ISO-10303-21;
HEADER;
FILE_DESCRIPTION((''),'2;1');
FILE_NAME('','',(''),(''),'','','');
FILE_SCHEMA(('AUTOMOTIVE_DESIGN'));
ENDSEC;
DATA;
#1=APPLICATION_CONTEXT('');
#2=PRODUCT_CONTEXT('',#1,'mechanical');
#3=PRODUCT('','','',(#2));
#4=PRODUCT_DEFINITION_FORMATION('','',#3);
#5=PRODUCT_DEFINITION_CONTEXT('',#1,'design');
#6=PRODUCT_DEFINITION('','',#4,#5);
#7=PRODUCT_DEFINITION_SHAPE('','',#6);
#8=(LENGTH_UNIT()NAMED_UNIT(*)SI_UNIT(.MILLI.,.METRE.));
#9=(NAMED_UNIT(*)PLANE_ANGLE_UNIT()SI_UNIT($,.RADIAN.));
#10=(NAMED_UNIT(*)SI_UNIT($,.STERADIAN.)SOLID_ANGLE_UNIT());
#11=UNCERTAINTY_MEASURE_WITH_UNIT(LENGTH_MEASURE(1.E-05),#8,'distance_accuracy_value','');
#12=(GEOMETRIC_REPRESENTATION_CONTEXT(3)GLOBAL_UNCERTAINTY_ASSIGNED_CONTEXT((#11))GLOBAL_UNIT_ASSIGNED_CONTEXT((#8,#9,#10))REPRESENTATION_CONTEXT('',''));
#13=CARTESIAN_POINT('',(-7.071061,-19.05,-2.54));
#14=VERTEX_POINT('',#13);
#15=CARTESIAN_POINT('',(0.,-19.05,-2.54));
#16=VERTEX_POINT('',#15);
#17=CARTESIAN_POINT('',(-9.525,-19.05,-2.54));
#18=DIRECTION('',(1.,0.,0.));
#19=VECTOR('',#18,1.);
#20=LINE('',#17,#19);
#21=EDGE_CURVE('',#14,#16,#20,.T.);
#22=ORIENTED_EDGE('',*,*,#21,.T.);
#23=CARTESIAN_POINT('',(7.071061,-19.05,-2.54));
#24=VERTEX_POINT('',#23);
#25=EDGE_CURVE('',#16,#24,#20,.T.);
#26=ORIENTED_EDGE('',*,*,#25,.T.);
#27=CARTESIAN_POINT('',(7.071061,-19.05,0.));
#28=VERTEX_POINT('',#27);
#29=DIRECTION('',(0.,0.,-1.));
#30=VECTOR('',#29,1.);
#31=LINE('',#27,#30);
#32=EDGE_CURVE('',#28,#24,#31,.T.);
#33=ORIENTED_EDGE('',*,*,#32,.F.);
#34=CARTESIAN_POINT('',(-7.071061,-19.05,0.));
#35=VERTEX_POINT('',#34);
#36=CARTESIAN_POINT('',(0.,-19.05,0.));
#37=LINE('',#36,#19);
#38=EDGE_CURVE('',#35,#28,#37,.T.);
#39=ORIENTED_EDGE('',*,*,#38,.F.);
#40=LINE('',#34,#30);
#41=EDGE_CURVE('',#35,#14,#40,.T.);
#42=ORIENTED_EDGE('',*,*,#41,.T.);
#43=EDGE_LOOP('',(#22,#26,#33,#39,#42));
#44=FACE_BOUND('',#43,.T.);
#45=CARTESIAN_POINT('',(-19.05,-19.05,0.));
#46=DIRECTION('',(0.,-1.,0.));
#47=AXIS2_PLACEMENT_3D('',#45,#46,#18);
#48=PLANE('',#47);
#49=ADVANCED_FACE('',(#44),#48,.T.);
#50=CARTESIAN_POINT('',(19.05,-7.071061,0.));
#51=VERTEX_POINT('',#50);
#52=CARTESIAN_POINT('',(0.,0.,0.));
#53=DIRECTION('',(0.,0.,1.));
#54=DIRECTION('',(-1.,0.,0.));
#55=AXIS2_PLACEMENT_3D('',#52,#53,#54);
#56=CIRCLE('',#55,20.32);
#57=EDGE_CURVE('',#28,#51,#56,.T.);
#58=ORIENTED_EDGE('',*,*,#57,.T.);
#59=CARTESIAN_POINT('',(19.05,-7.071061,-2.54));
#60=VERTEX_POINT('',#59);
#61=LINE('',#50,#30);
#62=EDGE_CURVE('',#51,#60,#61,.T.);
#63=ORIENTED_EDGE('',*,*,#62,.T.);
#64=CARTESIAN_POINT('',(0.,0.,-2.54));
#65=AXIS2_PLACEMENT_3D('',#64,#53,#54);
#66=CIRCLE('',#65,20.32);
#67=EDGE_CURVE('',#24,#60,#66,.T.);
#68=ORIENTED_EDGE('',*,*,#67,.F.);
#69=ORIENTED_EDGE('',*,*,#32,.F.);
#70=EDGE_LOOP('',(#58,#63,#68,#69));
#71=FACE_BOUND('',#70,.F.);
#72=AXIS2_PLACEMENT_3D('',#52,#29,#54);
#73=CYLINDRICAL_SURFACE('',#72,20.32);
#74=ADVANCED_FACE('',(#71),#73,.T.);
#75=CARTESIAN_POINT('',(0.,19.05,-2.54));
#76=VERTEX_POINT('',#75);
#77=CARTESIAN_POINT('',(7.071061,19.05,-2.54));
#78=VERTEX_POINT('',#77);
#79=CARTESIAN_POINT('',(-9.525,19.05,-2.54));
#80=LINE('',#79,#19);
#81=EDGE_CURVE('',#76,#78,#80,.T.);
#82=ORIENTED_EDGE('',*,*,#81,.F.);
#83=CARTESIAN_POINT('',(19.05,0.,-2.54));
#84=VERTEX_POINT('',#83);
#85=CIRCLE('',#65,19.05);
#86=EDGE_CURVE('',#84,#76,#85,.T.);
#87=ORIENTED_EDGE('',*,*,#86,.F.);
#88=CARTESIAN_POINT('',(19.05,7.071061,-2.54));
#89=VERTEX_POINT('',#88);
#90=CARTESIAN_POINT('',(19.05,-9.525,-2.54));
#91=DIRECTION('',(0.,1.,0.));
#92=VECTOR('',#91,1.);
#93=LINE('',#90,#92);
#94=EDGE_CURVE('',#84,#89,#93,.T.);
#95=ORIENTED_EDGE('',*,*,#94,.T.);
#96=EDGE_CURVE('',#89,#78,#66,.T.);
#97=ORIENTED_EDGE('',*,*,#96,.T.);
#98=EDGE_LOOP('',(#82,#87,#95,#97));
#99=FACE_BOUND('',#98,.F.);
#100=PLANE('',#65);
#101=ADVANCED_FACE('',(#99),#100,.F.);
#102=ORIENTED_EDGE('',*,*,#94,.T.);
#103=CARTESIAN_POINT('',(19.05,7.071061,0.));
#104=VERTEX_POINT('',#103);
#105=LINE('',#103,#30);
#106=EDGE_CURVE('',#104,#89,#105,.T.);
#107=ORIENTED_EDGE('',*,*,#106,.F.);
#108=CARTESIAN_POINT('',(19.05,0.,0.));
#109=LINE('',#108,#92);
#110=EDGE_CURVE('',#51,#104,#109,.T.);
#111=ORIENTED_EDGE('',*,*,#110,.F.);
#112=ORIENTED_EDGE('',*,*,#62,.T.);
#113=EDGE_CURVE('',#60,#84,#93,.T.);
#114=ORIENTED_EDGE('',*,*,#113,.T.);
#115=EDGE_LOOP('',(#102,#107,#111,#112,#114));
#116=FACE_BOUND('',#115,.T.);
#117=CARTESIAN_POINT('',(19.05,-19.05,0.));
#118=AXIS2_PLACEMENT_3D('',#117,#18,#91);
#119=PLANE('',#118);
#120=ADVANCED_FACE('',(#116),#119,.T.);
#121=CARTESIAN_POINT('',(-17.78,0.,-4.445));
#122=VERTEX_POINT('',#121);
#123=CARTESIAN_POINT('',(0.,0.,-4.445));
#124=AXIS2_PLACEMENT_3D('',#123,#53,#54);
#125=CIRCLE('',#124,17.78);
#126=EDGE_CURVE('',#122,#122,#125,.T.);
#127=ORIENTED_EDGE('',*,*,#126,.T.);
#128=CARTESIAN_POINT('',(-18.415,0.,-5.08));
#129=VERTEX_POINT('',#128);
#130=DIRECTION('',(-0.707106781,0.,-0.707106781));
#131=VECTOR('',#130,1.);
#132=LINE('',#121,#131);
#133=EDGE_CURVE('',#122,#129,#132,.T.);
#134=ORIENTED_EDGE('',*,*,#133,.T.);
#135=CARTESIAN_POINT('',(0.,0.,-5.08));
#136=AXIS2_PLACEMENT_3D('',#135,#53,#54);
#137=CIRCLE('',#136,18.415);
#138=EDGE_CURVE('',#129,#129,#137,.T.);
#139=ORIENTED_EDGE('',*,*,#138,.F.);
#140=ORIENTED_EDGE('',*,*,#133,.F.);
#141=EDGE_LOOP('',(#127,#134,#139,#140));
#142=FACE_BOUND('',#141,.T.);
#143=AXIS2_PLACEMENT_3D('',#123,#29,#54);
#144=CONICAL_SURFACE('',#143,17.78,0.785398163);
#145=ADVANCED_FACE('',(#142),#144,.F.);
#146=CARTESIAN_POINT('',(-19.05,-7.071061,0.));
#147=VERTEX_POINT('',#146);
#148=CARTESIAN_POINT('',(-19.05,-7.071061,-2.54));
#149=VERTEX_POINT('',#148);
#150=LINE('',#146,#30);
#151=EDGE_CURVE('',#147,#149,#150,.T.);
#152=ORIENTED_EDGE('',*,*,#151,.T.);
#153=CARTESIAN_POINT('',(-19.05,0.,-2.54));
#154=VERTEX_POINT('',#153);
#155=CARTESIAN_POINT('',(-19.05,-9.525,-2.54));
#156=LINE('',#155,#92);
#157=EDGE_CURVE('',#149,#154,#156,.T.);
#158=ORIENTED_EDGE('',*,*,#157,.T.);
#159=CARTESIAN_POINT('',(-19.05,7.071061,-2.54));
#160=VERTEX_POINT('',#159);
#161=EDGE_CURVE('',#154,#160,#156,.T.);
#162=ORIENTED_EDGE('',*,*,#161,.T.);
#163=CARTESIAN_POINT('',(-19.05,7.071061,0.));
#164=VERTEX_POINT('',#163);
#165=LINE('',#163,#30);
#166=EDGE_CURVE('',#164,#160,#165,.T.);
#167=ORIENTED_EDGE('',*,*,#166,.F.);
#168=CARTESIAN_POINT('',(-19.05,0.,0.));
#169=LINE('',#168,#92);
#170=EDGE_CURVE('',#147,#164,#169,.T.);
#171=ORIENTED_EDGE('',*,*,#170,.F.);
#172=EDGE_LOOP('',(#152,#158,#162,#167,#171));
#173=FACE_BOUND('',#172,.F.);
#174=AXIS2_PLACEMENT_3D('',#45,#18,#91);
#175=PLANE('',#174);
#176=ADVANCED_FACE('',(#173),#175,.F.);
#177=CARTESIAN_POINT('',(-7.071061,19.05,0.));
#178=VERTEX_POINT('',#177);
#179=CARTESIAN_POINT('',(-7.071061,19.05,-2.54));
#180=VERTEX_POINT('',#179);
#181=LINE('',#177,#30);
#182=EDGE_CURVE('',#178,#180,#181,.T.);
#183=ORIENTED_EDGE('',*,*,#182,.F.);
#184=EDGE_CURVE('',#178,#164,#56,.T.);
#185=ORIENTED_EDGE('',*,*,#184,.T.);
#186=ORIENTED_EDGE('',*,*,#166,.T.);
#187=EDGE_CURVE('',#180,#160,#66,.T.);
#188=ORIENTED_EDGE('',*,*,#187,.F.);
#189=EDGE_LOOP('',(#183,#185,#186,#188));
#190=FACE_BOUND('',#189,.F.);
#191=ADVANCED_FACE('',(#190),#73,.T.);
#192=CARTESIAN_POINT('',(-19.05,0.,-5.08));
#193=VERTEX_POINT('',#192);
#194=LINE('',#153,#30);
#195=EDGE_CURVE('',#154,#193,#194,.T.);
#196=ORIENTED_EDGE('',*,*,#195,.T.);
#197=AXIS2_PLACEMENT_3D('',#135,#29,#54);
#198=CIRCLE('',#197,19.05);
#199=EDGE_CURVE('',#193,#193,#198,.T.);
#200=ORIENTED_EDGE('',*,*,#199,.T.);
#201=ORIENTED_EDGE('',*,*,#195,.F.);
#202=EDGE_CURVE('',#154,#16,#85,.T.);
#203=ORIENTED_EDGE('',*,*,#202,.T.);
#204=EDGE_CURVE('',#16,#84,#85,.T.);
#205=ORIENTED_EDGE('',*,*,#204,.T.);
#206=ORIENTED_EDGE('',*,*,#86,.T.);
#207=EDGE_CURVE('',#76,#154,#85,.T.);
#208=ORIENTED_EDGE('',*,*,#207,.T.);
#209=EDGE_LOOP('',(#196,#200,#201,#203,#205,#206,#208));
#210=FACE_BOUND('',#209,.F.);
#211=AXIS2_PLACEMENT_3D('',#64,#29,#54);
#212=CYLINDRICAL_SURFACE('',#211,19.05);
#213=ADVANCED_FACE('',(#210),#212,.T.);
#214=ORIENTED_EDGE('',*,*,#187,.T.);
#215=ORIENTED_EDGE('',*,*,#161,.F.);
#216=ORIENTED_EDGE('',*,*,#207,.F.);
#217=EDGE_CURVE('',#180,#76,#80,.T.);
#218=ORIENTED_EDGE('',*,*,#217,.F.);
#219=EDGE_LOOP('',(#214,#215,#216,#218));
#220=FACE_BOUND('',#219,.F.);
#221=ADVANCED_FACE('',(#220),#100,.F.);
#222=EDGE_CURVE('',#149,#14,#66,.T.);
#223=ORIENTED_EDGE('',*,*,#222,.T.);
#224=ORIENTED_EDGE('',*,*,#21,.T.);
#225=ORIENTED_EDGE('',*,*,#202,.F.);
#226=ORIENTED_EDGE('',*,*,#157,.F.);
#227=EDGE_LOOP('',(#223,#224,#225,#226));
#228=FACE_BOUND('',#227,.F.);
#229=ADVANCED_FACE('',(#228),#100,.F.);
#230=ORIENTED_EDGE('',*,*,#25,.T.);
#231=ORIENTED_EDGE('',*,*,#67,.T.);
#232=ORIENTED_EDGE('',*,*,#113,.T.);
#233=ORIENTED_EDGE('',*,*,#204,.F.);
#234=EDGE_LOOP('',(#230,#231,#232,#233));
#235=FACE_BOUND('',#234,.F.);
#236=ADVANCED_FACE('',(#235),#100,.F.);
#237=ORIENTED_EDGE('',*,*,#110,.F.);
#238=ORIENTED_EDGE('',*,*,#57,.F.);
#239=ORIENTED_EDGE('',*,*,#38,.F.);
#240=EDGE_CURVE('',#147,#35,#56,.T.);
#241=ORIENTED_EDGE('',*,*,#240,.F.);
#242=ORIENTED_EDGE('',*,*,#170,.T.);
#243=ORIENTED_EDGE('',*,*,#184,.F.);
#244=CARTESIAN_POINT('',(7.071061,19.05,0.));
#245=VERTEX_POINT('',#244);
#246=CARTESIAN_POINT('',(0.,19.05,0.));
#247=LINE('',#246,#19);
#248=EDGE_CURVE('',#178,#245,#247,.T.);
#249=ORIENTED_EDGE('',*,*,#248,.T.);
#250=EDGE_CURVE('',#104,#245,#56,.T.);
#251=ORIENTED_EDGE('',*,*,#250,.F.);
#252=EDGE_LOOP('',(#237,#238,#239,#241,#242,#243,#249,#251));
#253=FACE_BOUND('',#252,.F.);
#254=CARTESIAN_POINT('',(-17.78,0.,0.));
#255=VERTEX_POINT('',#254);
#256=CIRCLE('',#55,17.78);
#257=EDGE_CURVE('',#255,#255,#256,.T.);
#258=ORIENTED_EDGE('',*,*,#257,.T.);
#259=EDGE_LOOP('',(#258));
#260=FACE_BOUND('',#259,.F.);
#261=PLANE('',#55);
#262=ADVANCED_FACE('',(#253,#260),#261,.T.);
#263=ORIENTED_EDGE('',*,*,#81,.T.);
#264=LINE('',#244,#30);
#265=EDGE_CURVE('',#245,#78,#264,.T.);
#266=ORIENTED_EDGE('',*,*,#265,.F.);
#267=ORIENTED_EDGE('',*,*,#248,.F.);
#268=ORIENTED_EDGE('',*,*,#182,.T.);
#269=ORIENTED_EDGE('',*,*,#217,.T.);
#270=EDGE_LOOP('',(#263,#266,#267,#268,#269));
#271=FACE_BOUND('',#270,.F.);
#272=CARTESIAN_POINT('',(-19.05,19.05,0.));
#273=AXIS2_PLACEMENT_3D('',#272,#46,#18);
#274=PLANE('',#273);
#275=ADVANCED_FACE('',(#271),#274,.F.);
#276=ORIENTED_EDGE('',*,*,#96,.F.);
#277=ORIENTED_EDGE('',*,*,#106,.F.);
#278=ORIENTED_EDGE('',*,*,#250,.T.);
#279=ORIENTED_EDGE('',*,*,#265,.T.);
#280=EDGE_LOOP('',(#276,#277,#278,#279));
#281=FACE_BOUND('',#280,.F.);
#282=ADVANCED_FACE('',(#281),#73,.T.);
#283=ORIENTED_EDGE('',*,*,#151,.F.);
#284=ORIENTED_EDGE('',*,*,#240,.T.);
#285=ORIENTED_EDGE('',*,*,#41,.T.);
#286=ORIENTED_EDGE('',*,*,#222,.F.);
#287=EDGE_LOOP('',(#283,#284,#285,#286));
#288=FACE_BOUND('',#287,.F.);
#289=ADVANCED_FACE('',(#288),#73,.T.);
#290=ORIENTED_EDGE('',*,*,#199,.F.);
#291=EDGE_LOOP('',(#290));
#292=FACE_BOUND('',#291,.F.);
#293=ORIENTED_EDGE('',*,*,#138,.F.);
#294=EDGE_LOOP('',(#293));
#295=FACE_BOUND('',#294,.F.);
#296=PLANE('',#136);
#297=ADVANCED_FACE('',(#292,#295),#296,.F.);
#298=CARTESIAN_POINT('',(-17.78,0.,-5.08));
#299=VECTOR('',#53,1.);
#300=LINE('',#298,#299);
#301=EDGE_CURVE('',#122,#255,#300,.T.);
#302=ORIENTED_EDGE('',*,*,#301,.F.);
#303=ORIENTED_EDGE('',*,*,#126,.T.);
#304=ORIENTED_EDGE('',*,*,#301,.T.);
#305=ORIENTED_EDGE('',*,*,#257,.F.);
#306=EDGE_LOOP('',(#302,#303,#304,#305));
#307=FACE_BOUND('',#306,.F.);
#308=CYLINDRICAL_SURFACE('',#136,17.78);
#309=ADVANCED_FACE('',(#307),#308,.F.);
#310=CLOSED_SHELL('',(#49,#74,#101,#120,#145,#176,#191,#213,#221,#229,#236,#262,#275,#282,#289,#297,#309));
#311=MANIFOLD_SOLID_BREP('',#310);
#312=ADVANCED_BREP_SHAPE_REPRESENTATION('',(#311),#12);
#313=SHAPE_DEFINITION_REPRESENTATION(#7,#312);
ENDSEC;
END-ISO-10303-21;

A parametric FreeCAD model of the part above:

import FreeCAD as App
import Part
import Sketcher
Q = App.Units.Quantity


def edges_at(feature, points):
    """Names of the edges that pass closest to the given points."""
    edges = feature.Shape.Edges
    near = lambda p: min(range(len(edges)), key=lambda i: edges[i].distToShape(Part.Vertex(*p))[0])
    return sorted({f"Edge{near(p) + 1}" for p in points})

doc = App.newDocument("Part")
body = doc.addObject("PartDesign::Body", "Body")

sketch1 = body.newObject("Sketcher::SketchObject", "Sketch")
sketch1.AttachmentSupport = (doc.getObject("XZ_Plane"), [""])
sketch1.MapMode = "FlatFace"
sketch1.addGeometry([
    Part.LineSegment(App.Vector(-17.78, 0, 0), App.Vector(-20.32, 0, 0)),
    Part.LineSegment(App.Vector(-20.32, 0, 0), App.Vector(-20.32, -2.54, 0)),
    Part.LineSegment(App.Vector(-20.32, -2.54, 0), App.Vector(-19.05, -2.54, 0)),
    Part.LineSegment(App.Vector(-19.05, -2.54, 0), App.Vector(-19.05, -5.08, 0)),
    Part.LineSegment(App.Vector(-19.05, -5.08, 0), App.Vector(-17.78, -5.08, 0)),
    Part.LineSegment(App.Vector(-17.78, -5.08, 0), App.Vector(-17.78, 0, 0)),
], False)
sketch1.addConstraint([
    Sketcher.Constraint("Coincident", 0, 2, 1, 1),
    Sketcher.Constraint("Coincident", 1, 2, 2, 1),
    Sketcher.Constraint("Coincident", 2, 2, 3, 1),
    Sketcher.Constraint("Coincident", 3, 2, 4, 1),
    Sketcher.Constraint("Coincident", 4, 2, 5, 1),
    Sketcher.Constraint("Coincident", 5, 2, 0, 1),
    Sketcher.Constraint("Horizontal", 0),
    Sketcher.Constraint("Vertical", 1),
    Sketcher.Constraint("Horizontal", 2),
    Sketcher.Constraint("Vertical", 3),
    Sketcher.Constraint("Horizontal", 4),
    Sketcher.Constraint("Vertical", 5),
    Sketcher.Constraint("PointOnObject", 0, 2, -1),
    Sketcher.Constraint("Equal", 2, 4),
    Sketcher.Constraint("Equal", 0, 1),
    Sketcher.Constraint("Equal", 1, 3),
    Sketcher.Constraint("DistanceX", 0, 2, 0, 1, Q("0.1 in")),
    Sketcher.Constraint("DistanceX", 0, 2, -1, 1, Q("0.8 in")),
])
revolution = body.newObject("PartDesign::Revolution", "Revolution")
revolution.Profile = sketch1
revolution.ReferenceAxis = (sketch1, ["V_Axis"])
revolution.Angle = 360

sketch2 = body.newObject("Sketcher::SketchObject", "Sketch001")
sketch2.AttachmentSupport = (doc.getObject("XY_Plane"), [""])
sketch2.MapMode = "FlatFace"
sketch2.addGeometry([
    Part.LineSegment(App.Vector(-25.4, 25.4, 0), App.Vector(-25.4, -25.4, 0)),
    Part.LineSegment(App.Vector(-25.4, -25.4, 0), App.Vector(25.4, -25.4, 0)),
    Part.LineSegment(App.Vector(25.4, -25.4, 0), App.Vector(25.4, 25.4, 0)),
    Part.LineSegment(App.Vector(25.4, 25.4, 0), App.Vector(-25.4, 25.4, 0)),
    Part.LineSegment(App.Vector(19.05, -19.05, 0), App.Vector(-19.05, -19.05, 0)),
    Part.LineSegment(App.Vector(-19.05, -19.05, 0), App.Vector(-19.05, 19.05, 0)),
    Part.LineSegment(App.Vector(-19.05, 19.05, 0), App.Vector(19.05, 19.05, 0)),
    Part.LineSegment(App.Vector(19.05, 19.05, 0), App.Vector(19.05, -19.05, 0)),
], False)
sketch2.addConstraint([
    Sketcher.Constraint("Coincident", 0, 2, 1, 1),
    Sketcher.Constraint("Coincident", 1, 2, 2, 1),
    Sketcher.Constraint("Coincident", 2, 2, 3, 1),
    Sketcher.Constraint("Coincident", 3, 2, 0, 1),
    Sketcher.Constraint("Coincident", 4, 2, 5, 1),
    Sketcher.Constraint("Coincident", 5, 2, 6, 1),
    Sketcher.Constraint("Coincident", 6, 2, 7, 1),
    Sketcher.Constraint("Coincident", 7, 2, 4, 1),
    Sketcher.Constraint("Vertical", 0),
    Sketcher.Constraint("Horizontal", 1),
    Sketcher.Constraint("Vertical", 2),
    Sketcher.Constraint("Horizontal", 3),
    Sketcher.Constraint("Horizontal", 4),
    Sketcher.Constraint("Vertical", 5),
    Sketcher.Constraint("Horizontal", 6),
    Sketcher.Constraint("Vertical", 7),
    Sketcher.Constraint("Symmetric", 0, 2, 2, 2, -1, 1),
    Sketcher.Constraint("Symmetric", 4, 2, 6, 2, -1, 1),
    Sketcher.Constraint("Equal", 3, 0),
    Sketcher.Constraint("Equal", 6, 5),
    Sketcher.Constraint("DistanceX", 1, 1, 1, 2, Q("2 in")),
    Sketcher.Constraint("DistanceX", 4, 2, 4, 1, Q("1.5 in")),
])
pocket1 = body.newObject("PartDesign::Pocket", "Pocket")
pocket1.Profile = sketch2
pocket1.Length = Q("0.2 in")
doc.recompute()

chamfer = body.newObject("PartDesign::Chamfer", "Chamfer")
chamfer.Base = (pocket1, edges_at(pocket1, [(17.78, 0, -5.08)]))
chamfer.Size = Q("0.025 in")

doc.recompute()
